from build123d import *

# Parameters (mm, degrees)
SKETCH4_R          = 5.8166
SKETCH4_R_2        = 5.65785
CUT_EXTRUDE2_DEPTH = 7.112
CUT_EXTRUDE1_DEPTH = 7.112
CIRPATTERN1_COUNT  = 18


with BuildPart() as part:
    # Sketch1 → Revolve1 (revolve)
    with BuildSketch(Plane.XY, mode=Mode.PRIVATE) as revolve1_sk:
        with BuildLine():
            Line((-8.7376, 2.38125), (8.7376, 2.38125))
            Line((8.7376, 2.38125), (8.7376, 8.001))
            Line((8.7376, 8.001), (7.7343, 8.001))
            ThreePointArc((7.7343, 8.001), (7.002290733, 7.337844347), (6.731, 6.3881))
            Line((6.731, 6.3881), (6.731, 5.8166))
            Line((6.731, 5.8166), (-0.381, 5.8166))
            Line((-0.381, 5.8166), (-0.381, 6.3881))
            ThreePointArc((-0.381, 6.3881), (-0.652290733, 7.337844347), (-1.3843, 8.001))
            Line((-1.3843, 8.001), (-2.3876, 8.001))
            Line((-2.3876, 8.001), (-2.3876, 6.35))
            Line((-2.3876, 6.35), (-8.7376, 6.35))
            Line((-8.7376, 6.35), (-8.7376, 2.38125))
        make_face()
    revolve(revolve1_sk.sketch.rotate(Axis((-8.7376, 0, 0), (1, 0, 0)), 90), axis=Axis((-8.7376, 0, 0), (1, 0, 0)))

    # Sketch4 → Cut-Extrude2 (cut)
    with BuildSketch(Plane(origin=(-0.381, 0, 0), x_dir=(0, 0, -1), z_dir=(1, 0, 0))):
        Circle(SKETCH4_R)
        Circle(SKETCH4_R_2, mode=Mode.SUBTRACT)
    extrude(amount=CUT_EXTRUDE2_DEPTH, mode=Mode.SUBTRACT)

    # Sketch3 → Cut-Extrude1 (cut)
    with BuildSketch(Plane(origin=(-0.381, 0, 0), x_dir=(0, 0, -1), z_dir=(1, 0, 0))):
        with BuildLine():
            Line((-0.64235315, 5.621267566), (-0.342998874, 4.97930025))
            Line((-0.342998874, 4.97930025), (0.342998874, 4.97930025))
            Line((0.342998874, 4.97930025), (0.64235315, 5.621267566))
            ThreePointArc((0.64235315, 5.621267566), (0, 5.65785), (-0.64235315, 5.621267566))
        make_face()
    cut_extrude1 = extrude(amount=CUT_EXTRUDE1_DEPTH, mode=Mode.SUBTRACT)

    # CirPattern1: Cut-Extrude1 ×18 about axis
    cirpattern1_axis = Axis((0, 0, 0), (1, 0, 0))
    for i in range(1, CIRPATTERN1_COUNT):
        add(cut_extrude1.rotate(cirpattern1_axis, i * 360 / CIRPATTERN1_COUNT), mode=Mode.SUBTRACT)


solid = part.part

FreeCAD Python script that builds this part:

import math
import FreeCAD as App
import Part
import Sketcher
from FreeCAD import Vector
Q = App.Units.Quantity

doc = App.newDocument("Part")
body = doc.addObject("PartDesign::Body", "Body")

sketch1 = body.newObject("Sketcher::SketchObject", "Sketch")
sketch1.AttachmentSupport = (doc.getObject("XY_Plane"), [""])
sketch1.MapMode = "FlatFace"
sketch1.addGeometry(Part.LineSegment(Vector(-8.7376, 2.38125, 0), Vector(8.7376, 2.38125, 0)), False)
sketch1.addGeometry(Part.LineSegment(Vector(8.7376, 2.38125, 0), Vector(8.7376, 8.001, 0)), False)
sketch1.addGeometry(Part.LineSegment(Vector(8.7376, 8.001, 0), Vector(7.7343, 8.001, 0)), False)
sketch1.addGeometry(Part.ArcOfCircle(Part.Circle(Vector(8.529095, 6.3881, 0), Vector(0, 0, 1), 1.798095), math.radians(116.232872), math.radians(180)), False)
sketch1.addGeometry(Part.LineSegment(Vector(6.731, 6.3881, 0), Vector(6.731, 5.8166, 0)), False)
sketch1.addGeometry(Part.LineSegment(Vector(6.731, 5.8166, 0), Vector(-0.381, 5.8166, 0)), False)
sketch1.addGeometry(Part.LineSegment(Vector(-0.381, 5.8166, 0), Vector(-0.381, 6.3881, 0)), False)
sketch1.addGeometry(Part.ArcOfCircle(Part.Circle(Vector(-2.179095, 6.3881, 0), Vector(0, 0, 1), 1.798095), math.radians(0), math.radians(63.767128)), False)
sketch1.addGeometry(Part.LineSegment(Vector(-1.3843, 8.001, 0), Vector(-2.3876, 8.001, 0)), False)
sketch1.addGeometry(Part.LineSegment(Vector(-2.3876, 8.001, 0), Vector(-2.3876, 6.35, 0)), False)
sketch1.addGeometry(Part.LineSegment(Vector(-2.3876, 6.35, 0), Vector(-8.7376, 6.35, 0)), False)
sketch1.addGeometry(Part.LineSegment(Vector(-8.7376, 6.35, 0), Vector(-8.7376, 2.38125, 0)), False)
sketch1.addConstraint(Sketcher.Constraint("Coincident", 0, 2, 1, 1))
sketch1.addConstraint(Sketcher.Constraint("Coincident", 1, 2, 2, 1))
sketch1.addConstraint(Sketcher.Constraint("Coincident", 2, 2, 3, 1))
sketch1.addConstraint(Sketcher.Constraint("Tangent", 3, 2, 4, 1))
sketch1.addConstraint(Sketcher.Constraint("Coincident", 4, 2, 5, 1))
sketch1.addConstraint(Sketcher.Constraint("Coincident", 5, 2, 6, 1))
sketch1.addConstraint(Sketcher.Constraint("Tangent", 6, 2, 7, 1))
sketch1.addConstraint(Sketcher.Constraint("Coincident", 7, 2, 8, 1))
sketch1.addConstraint(Sketcher.Constraint("Coincident", 8, 2, 9, 1))
sketch1.addConstraint(Sketcher.Constraint("Coincident", 9, 2, 10, 1))
sketch1.addConstraint(Sketcher.Constraint("Coincident", 10, 2, 11, 1))
sketch1.addConstraint(Sketcher.Constraint("Coincident", 11, 2, 0, 1))
sketch1.addConstraint(Sketcher.Constraint("Horizontal", 0))
sketch1.addConstraint(Sketcher.Constraint("Vertical", 1))
sketch1.addConstraint(Sketcher.Constraint("Horizontal", 2))
sketch1.addConstraint(Sketcher.Constraint("Vertical", 4))
sketch1.addConstraint(Sketcher.Constraint("Horizontal", 5))
sketch1.addConstraint(Sketcher.Constraint("Vertical", 6))
sketch1.addConstraint(Sketcher.Constraint("Horizontal", 8))
sketch1.addConstraint(Sketcher.Constraint("Vertical", 9))
sketch1.addConstraint(Sketcher.Constraint("Horizontal", 10))
sketch1.addConstraint(Sketcher.Constraint("Vertical", 11))
sketch1.addConstraint(Sketcher.Constraint("Equal", 3, 7))
sketch1.addConstraint(Sketcher.Constraint("Horizontal", 3, 3, 7, 3))
sketch1.addConstraint(Sketcher.Constraint("Horizontal", 2, 2, 7, 2))
sketch1.addConstraint(Sketcher.Constraint("Equal", 2, 8))
sketch1.addConstraint(Sketcher.Constraint("DistanceX", 5, 2, 5, 1, Q("0.28 in")))
sketch1.addConstraint(Sketcher.Constraint("DistanceX", 10, 2, 10, 1, Q("0.25 in")))
sketch1.addConstraint(Sketcher.Constraint("DistanceX", 0, 1, 0, 2, Q("0.688 in")))
sketch1.addConstraint(Sketcher.Constraint("DistanceY", 9, 2, 9, 1, Q("0.065 in")))
sketch1.addConstraint(Sketcher.Constraint("DistanceY", 11, 2, 11, 1, Q("0.15625 in")))
sketch1.addConstraint(Sketcher.Constraint("DistanceY", -1, 1, 9, 2, Q("0.25 in")))
sketch1.addConstraint(Sketcher.Constraint("DistanceX", 2, 2, 2, 1, Q("0.0395 in")))
sketch1.addConstraint(Sketcher.Constraint("DistanceY", 4, 2, 4, 1, Q("0.0225 in")))
sketch1.addConstraint(Sketcher.Constraint("DistanceX", -1, 1, 0, 2, Q("0.344 in")))
sketch1.addConstraint(Sketcher.Constraint("DistanceY", -1, 1, 4, 2, Q("0.229 in")))
revolution = body.newObject("PartDesign::Revolution", "Revolution")
revolution.Profile = sketch1
revolution.ReferenceAxis = (sketch1, ["H_Axis"])
revolution.Angle = 360

sketch2 = body.newObject("Sketcher::SketchObject", "Sketch001")
sketch2.AttachmentSupport = (doc.getObject("YZ_Plane"), [""])
sketch2.MapMode = "FlatFace"
sketch2.AttachmentOffset = App.Placement(Vector(0, 0, -0.015 * 25.4), App.Rotation())
sketch2.addGeometry(Part.Circle(Vector(0, 0, 0), Vector(0, 0, 1), 5.8166), False)
sketch2.addGeometry(Part.Circle(Vector(0, 0, 0), Vector(0, 0, 1), 5.65785), False)
sketch2.addConstraint(Sketcher.Constraint("Coincident", 0, 3, -1, 1))
sketch2.addConstraint(Sketcher.Constraint("Coincident", 1, 3, -1, 1))
sketch2.addConstraint(Sketcher.Constraint("Diameter", 0, Q("0.458 in")))
sketch2.addConstraint(Sketcher.Constraint("Diameter", 1, Q("0.4455 in")))
pocket1 = body.newObject("PartDesign::Pocket", "Pocket")
pocket1.Profile = sketch2
pocket1.Length = Q("0.28 in")
pocket1.Reversed = True

sketch3 = body.newObject("Sketcher::SketchObject", "Sketch002")
sketch3.AttachmentSupport = (doc.getObject("YZ_Plane"), [""])
sketch3.MapMode = "FlatFace"
sketch3.AttachmentOffset = App.Placement(Vector(0, 0, -0.015 * 25.4), App.Rotation())
sketch3.addGeometry(Part.LineSegment(Vector(5.621268, 0.642353, 0), Vector(4.9793, 0.342999, 0)), False)
sketch3.addGeometry(Part.LineSegment(Vector(4.9793, 0.342999, 0), Vector(4.9793, -0.342999, 0)), False)
sketch3.addGeometry(Part.LineSegment(Vector(4.9793, -0.342999, 0), Vector(5.621268, -0.642353, 0)), False)
sketch3.addGeometry(Part.ArcOfCircle(Part.Circle(Vector(0, 0, 0), Vector(0, 0, 1), 5.65785), math.radians(-6.519023), math.radians(6.519023)), False)
sketch3.addConstraint(Sketcher.Constraint("Coincident", 0, 2, 1, 1))
sketch3.addConstraint(Sketcher.Constraint("Coincident", 1, 2, 2, 1))
sketch3.addConstraint(Sketcher.Constraint("Coincident", 2, 2, 3, 1))
sketch3.addConstraint(Sketcher.Constraint("Coincident", 3, 2, 0, 1))
sketch3.addConstraint(Sketcher.Constraint("Vertical", 1))
sketch3.addConstraint(Sketcher.Constraint("Coincident", 3, 3, -1, 1))
sketch3.addConstraint(Sketcher.Constraint("Vertical", 2, 2, 3, 2))
sketch3.addConstraint(Sketcher.Constraint("Equal", 0, 2))
sketch3.addConstraint(Sketcher.Constraint("Angle", 0, Q("-155 deg")))
sketch3.addConstraint(Sketcher.Constraint("Radius", 3, Q("5.65785 mm")))
sketch3.addConstraint(Sketcher.Constraint("DistanceX", -1, 1, 0, 2, Q("4.9793 mm")))
sketch3.addConstraint(Sketcher.Constraint("DistanceY", -1, 1, 0, 2, Q("0.342999 mm")))
pocket2 = body.newObject("PartDesign::Pocket", "Pocket001")
pocket2.Profile = sketch3
pocket2.Length = Q("0.28 in")
pocket2.Reversed = True
doc.recompute()

polarpattern = body.newObject("PartDesign::PolarPattern", "PolarPattern")
polarpattern.Originals = [pocket2]
polarpattern.Axis = (doc.getObject("X_Axis"), [""])
polarpattern.Angle = 360
polarpattern.Occurrences = 18
body.Tip = polarpattern

doc.recompute()
